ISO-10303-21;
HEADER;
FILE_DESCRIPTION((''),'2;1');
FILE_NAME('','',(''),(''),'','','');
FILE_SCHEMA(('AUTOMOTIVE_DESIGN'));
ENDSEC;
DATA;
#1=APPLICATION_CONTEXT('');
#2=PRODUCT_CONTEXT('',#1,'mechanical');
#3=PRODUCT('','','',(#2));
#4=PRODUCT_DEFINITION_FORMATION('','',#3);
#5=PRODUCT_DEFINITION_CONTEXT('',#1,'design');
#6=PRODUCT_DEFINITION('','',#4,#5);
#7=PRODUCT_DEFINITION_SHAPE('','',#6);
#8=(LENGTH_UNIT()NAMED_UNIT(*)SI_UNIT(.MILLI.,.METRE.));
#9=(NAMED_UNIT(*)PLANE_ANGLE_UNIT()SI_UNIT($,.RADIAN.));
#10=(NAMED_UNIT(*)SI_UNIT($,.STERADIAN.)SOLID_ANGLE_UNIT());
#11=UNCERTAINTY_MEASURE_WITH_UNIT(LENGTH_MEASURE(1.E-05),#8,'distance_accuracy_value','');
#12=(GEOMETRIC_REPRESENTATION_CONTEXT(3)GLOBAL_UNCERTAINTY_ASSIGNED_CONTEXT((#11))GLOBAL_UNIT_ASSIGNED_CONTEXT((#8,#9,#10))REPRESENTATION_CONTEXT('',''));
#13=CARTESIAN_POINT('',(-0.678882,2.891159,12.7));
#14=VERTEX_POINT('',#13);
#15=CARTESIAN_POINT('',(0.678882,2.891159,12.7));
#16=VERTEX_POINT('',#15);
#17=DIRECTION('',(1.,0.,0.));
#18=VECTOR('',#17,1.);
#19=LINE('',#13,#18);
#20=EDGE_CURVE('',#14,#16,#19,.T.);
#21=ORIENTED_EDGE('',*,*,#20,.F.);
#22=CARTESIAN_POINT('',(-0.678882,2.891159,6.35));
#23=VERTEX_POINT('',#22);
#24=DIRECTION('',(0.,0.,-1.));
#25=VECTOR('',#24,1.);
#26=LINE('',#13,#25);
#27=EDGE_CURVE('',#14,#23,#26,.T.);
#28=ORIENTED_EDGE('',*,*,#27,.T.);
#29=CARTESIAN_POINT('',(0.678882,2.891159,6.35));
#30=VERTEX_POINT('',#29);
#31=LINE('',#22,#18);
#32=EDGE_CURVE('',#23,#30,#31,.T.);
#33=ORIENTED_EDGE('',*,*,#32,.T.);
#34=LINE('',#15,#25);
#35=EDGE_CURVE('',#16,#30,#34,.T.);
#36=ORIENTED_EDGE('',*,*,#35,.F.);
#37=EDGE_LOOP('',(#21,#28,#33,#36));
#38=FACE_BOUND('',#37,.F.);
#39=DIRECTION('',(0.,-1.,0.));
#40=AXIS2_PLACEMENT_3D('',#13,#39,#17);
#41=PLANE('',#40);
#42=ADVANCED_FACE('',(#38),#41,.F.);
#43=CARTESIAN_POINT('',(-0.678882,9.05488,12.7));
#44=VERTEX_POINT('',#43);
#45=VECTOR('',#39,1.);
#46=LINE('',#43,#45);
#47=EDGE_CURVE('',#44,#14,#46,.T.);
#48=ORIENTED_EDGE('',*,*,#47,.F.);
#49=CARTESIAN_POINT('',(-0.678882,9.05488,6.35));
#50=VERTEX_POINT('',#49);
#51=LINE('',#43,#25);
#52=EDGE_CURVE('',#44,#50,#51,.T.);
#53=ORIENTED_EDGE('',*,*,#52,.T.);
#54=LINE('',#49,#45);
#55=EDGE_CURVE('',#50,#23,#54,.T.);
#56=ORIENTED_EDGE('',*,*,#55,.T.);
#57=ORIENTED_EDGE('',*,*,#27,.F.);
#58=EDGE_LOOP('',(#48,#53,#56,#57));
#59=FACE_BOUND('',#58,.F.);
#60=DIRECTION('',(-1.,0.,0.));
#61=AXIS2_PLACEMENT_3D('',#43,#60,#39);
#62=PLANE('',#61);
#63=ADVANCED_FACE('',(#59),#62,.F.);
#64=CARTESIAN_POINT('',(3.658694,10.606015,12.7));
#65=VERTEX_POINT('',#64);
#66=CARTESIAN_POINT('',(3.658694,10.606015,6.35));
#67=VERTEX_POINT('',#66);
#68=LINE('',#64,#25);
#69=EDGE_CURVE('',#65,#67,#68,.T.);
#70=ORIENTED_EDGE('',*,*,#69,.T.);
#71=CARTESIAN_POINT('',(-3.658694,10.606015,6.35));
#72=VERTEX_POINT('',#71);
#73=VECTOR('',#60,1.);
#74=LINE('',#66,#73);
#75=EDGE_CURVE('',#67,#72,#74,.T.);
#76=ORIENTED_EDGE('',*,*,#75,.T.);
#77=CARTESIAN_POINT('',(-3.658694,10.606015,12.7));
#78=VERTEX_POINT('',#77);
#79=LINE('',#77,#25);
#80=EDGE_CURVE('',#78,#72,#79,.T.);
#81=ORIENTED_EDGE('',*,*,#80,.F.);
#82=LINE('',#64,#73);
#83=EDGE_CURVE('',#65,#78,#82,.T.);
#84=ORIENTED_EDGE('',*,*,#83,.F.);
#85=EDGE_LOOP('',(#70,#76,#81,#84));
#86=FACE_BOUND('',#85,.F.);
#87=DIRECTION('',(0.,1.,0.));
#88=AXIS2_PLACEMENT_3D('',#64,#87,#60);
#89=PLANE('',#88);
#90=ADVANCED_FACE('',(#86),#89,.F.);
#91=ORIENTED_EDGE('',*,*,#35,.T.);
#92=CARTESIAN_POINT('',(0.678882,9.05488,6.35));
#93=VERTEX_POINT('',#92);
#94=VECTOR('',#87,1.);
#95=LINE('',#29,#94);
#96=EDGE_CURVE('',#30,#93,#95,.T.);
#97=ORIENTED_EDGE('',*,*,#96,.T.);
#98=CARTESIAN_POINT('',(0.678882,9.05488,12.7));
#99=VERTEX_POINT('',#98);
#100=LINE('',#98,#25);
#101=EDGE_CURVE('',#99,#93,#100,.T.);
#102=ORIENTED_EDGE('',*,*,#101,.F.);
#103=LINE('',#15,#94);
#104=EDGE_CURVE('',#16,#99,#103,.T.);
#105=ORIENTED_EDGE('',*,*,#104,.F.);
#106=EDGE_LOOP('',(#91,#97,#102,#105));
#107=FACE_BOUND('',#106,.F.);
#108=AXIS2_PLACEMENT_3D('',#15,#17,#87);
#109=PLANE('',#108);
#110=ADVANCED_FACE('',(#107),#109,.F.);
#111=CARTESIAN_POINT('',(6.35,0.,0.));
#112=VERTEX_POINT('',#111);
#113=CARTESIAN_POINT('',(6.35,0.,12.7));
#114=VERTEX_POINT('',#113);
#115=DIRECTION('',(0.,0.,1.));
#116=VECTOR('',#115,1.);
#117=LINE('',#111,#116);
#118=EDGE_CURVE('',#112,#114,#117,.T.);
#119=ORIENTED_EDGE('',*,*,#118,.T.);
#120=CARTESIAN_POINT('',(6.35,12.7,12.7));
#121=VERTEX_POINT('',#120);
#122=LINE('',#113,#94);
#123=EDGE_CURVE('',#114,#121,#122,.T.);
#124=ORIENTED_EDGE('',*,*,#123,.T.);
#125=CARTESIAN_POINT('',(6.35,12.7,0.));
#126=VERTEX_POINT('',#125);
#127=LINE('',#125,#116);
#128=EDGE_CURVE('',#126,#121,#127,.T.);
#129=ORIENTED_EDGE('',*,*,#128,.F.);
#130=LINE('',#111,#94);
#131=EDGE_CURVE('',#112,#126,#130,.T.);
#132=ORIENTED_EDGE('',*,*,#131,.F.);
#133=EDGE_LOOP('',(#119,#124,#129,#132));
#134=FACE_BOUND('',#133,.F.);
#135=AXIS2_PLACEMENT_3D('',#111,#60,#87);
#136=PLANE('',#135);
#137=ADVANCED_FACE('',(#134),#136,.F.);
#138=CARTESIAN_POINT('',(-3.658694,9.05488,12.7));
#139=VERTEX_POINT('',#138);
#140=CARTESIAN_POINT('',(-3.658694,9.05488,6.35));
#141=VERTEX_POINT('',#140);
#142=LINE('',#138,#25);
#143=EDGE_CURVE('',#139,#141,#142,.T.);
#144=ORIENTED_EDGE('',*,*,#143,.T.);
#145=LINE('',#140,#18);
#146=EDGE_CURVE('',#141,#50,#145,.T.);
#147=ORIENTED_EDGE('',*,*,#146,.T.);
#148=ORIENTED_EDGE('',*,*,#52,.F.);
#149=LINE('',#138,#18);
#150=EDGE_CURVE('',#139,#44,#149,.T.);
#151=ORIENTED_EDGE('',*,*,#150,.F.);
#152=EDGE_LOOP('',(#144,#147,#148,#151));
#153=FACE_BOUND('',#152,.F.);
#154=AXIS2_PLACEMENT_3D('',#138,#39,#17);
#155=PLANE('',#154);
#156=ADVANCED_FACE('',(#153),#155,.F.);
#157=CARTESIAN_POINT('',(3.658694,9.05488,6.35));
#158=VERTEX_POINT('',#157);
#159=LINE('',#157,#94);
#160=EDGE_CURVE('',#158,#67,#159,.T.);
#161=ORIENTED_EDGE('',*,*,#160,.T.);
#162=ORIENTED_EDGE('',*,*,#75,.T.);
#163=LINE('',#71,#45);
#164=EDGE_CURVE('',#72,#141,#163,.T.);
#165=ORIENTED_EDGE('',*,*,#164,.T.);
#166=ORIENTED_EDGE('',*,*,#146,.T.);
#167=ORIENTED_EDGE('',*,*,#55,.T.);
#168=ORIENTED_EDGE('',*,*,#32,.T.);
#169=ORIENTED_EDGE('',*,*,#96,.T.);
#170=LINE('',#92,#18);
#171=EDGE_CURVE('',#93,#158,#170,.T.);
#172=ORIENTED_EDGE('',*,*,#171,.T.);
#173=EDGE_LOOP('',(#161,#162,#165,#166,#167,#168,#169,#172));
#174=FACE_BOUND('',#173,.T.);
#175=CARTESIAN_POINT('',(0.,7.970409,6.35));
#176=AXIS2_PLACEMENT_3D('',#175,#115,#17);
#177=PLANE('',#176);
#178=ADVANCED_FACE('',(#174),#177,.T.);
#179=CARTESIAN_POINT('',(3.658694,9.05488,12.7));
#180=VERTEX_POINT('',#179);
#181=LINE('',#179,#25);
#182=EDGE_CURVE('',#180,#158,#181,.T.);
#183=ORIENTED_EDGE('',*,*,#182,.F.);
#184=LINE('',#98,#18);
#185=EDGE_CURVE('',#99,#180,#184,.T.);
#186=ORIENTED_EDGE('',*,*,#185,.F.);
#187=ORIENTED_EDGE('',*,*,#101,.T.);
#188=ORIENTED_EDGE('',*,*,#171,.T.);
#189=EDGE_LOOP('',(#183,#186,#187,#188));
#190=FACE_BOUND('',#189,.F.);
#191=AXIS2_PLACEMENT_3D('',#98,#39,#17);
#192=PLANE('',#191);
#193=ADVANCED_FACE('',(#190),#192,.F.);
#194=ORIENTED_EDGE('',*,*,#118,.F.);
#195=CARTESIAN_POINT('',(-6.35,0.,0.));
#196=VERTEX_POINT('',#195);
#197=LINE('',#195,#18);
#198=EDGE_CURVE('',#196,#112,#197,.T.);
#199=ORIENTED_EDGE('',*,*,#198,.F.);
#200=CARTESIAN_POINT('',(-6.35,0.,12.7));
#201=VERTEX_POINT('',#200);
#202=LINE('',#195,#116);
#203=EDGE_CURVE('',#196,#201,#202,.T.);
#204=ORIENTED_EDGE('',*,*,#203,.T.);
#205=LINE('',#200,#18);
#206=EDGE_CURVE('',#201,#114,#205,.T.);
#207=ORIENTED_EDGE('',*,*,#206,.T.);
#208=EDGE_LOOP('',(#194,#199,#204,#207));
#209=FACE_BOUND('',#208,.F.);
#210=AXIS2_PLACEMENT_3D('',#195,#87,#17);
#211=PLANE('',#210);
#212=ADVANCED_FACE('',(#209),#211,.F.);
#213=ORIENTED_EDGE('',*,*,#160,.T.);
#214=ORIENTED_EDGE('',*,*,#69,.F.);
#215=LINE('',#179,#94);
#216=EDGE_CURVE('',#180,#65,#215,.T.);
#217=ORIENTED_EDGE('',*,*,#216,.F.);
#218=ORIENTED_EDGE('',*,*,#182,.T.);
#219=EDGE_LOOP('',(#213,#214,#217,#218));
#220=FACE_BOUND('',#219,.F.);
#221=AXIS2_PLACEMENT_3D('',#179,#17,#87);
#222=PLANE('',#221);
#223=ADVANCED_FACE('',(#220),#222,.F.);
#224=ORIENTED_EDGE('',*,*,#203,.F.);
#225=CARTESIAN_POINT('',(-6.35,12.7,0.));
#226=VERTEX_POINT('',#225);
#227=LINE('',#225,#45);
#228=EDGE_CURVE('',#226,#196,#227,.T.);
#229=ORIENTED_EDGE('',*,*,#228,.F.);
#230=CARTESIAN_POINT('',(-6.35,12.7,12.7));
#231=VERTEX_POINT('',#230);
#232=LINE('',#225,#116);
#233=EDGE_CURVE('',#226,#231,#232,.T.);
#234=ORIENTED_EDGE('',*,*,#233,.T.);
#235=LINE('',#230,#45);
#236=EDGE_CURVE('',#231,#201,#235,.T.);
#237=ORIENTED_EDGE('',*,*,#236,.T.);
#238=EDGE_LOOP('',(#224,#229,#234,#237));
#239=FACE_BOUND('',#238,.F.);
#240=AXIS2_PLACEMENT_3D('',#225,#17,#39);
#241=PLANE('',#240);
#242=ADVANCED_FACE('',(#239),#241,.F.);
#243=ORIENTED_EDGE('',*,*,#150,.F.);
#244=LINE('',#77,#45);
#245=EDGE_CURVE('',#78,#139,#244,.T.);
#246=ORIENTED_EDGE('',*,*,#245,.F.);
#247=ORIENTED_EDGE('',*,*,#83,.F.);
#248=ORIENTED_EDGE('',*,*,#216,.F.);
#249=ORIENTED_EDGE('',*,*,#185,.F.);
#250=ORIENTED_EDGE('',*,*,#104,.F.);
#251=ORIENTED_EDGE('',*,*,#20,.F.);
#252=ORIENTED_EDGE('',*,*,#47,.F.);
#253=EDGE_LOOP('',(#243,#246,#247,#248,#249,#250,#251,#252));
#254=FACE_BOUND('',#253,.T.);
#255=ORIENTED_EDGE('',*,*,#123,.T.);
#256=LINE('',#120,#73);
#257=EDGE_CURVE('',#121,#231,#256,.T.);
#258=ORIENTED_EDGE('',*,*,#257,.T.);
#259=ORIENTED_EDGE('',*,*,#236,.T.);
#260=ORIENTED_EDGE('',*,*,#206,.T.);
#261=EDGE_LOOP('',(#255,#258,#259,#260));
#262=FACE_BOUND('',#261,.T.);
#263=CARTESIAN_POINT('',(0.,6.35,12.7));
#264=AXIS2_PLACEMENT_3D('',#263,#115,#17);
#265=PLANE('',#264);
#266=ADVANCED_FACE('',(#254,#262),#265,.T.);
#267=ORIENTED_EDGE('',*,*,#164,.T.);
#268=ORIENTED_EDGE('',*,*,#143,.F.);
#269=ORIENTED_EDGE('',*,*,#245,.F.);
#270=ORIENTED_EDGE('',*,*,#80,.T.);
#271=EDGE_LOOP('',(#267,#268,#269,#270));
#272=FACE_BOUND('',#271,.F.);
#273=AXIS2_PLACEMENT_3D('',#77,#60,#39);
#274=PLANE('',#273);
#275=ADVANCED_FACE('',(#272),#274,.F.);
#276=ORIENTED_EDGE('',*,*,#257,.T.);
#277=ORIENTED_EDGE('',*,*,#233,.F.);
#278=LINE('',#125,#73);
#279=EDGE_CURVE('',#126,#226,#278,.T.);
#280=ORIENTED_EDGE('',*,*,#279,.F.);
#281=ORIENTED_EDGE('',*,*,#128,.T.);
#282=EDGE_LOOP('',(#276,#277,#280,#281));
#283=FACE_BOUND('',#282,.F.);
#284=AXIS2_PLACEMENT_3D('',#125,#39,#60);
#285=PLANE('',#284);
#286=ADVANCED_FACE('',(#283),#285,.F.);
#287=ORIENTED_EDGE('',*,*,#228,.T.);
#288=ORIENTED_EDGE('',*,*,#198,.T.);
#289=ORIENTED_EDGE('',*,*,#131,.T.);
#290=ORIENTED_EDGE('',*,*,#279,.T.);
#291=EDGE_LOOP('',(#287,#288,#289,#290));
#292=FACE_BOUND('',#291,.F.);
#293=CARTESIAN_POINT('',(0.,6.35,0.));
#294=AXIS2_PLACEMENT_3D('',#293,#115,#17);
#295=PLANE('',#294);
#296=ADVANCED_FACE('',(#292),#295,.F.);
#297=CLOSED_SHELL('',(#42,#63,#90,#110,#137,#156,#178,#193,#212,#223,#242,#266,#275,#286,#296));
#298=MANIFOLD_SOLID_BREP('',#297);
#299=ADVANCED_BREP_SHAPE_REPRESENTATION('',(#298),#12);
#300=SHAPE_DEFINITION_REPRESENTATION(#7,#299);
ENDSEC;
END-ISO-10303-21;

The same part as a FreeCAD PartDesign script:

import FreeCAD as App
import Part
import Sketcher

V = App.Vector
Q = App.Units.Quantity

doc = App.newDocument("Part")
body = doc.addObject("PartDesign::Body", "Body")

sketch1 = body.newObject("Sketcher::SketchObject", "Sketch")
sketch1.AttachmentSupport = (doc.getObject("XY_Plane"), [""])
sketch1.MapMode = "FlatFace"
sketch1.addGeometry(Part.LineSegment(V(-6, 0, 0), V(6, 0, 0)), False)
sketch1.addGeometry(Part.LineSegment(V(6, 0, 0), V(6, 13, 0)), False)
sketch1.addGeometry(Part.LineSegment(V(6, 13, 0), V(-6, 13, 0)), False)
sketch1.addGeometry(Part.LineSegment(V(-6, 13, 0), V(-6, 0, 0)), False)
sketch1.addConstraint(Sketcher.Constraint("Coincident", 0, 2, 1, 1))
sketch1.addConstraint(Sketcher.Constraint("Coincident", 1, 2, 2, 1))
sketch1.addConstraint(Sketcher.Constraint("Coincident", 2, 2, 3, 1))
sketch1.addConstraint(Sketcher.Constraint("Coincident", 3, 2, 0, 1))
sketch1.addConstraint(Sketcher.Constraint("Horizontal", 0))
sketch1.addConstraint(Sketcher.Constraint("Vertical", 1))
sketch1.addConstraint(Sketcher.Constraint("Horizontal", 2))
sketch1.addConstraint(Sketcher.Constraint("Vertical", 3))
sketch1.addConstraint(Sketcher.Constraint("Symmetric", 0, 2, 3, 2, -1, 1))
sketch1.addConstraint(Sketcher.Constraint("Equal", 2, 1))
sketch1.addConstraint(Sketcher.Constraint("DistanceX", 0, 1, 0, 2, Q("0.5 in")))
pad1 = body.newObject("PartDesign::Pad", "Pad")
pad1.Profile = sketch1
pad1.Length = Q("0.5 in")

sketch2 = body.newObject("Sketcher::SketchObject", "Sketch001")
sketch2.AttachmentSupport = (doc.getObject("XY_Plane"), [""])
sketch2.MapMode = "FlatFace"
sketch2.AttachmentOffset = App.Placement(V(0, 0, 0.5 * 25.4), App.Rotation())
sketch2.addGeometry(Part.LineSegment(V(3.7, 10.6, 0), V(-3.7, 10.6, 0)), False)
sketch2.addGeometry(Part.LineSegment(V(-3.7, 10.6, 0), V(-3.7, 9.1, 0)), False)
sketch2.addGeometry(Part.LineSegment(V(-3.7, 9.1, 0), V(-0.7, 9.1, 0)), False)
sketch2.addGeometry(Part.LineSegment(V(-0.7, 9.1, 0), V(-0.7, 2.9, 0)), False)
sketch2.addGeometry(Part.LineSegment(V(-0.7, 2.9, 0), V(0.7, 2.9, 0)), False)
sketch2.addGeometry(Part.LineSegment(V(0.7, 2.9, 0), V(0.7, 9.1, 0)), False)
sketch2.addGeometry(Part.LineSegment(V(0.7, 9.1, 0), V(3.7, 9.1, 0)), False)
sketch2.addGeometry(Part.LineSegment(V(3.7, 9.1, 0), V(3.7, 10.6, 0)), False)
sketch2.addConstraint(Sketcher.Constraint("Coincident", 0, 2, 1, 1))
sketch2.addConstraint(Sketcher.Constraint("Coincident", 1, 2, 2, 1))
sketch2.addConstraint(Sketcher.Constraint("Coincident", 2, 2, 3, 1))
sketch2.addConstraint(Sketcher.Constraint("Coincident", 3, 2, 4, 1))
sketch2.addConstraint(Sketcher.Constraint("Coincident", 4, 2, 5, 1))
sketch2.addConstraint(Sketcher.Constraint("Coincident", 5, 2, 6, 1))
sketch2.addConstraint(Sketcher.Constraint("Coincident", 6, 2, 7, 1))
sketch2.addConstraint(Sketcher.Constraint("Coincident", 7, 2, 0, 1))
sketch2.addConstraint(Sketcher.Constraint("Horizontal", 0))
sketch2.addConstraint(Sketcher.Constraint("Vertical", 1))
sketch2.addConstraint(Sketcher.Constraint("Horizontal", 2))
sketch2.addConstraint(Sketcher.Constraint("Vertical", 3))
sketch2.addConstraint(Sketcher.Constraint("Horizontal", 4))
sketch2.addConstraint(Sketcher.Constraint("Vertical", 5))
sketch2.addConstraint(Sketcher.Constraint("Horizontal", 6))
sketch2.addConstraint(Sketcher.Constraint("Vertical", 7))
sketch2.addConstraint(Sketcher.Constraint("Symmetric", 2, 2, 5, 2, -2))
sketch2.addConstraint(Sketcher.Constraint("Equal", 2, 6))
sketch2.addConstraint(Sketcher.Constraint("DistanceX", 0, 2, 0, 1, 7.317388))
sketch2.addConstraint(Sketcher.Constraint("DistanceX", 2, 1, 2, 2, 2.979812))
sketch2.addConstraint(Sketcher.Constraint("DistanceY", 3, 2, 3, 1, 6.163721))
sketch2.addConstraint(Sketcher.Constraint("DistanceY", 1, 2, 1, 1, 1.551135))
sketch2.addConstraint(Sketcher.Constraint("DistanceY", -1, 1, 1, 2, 9.05488))
pocket1 = body.newObject("PartDesign::Pocket", "Pocket")
pocket1.Profile = sketch2
pocket1.Length = Q("0.25 in")

doc.recompute()
